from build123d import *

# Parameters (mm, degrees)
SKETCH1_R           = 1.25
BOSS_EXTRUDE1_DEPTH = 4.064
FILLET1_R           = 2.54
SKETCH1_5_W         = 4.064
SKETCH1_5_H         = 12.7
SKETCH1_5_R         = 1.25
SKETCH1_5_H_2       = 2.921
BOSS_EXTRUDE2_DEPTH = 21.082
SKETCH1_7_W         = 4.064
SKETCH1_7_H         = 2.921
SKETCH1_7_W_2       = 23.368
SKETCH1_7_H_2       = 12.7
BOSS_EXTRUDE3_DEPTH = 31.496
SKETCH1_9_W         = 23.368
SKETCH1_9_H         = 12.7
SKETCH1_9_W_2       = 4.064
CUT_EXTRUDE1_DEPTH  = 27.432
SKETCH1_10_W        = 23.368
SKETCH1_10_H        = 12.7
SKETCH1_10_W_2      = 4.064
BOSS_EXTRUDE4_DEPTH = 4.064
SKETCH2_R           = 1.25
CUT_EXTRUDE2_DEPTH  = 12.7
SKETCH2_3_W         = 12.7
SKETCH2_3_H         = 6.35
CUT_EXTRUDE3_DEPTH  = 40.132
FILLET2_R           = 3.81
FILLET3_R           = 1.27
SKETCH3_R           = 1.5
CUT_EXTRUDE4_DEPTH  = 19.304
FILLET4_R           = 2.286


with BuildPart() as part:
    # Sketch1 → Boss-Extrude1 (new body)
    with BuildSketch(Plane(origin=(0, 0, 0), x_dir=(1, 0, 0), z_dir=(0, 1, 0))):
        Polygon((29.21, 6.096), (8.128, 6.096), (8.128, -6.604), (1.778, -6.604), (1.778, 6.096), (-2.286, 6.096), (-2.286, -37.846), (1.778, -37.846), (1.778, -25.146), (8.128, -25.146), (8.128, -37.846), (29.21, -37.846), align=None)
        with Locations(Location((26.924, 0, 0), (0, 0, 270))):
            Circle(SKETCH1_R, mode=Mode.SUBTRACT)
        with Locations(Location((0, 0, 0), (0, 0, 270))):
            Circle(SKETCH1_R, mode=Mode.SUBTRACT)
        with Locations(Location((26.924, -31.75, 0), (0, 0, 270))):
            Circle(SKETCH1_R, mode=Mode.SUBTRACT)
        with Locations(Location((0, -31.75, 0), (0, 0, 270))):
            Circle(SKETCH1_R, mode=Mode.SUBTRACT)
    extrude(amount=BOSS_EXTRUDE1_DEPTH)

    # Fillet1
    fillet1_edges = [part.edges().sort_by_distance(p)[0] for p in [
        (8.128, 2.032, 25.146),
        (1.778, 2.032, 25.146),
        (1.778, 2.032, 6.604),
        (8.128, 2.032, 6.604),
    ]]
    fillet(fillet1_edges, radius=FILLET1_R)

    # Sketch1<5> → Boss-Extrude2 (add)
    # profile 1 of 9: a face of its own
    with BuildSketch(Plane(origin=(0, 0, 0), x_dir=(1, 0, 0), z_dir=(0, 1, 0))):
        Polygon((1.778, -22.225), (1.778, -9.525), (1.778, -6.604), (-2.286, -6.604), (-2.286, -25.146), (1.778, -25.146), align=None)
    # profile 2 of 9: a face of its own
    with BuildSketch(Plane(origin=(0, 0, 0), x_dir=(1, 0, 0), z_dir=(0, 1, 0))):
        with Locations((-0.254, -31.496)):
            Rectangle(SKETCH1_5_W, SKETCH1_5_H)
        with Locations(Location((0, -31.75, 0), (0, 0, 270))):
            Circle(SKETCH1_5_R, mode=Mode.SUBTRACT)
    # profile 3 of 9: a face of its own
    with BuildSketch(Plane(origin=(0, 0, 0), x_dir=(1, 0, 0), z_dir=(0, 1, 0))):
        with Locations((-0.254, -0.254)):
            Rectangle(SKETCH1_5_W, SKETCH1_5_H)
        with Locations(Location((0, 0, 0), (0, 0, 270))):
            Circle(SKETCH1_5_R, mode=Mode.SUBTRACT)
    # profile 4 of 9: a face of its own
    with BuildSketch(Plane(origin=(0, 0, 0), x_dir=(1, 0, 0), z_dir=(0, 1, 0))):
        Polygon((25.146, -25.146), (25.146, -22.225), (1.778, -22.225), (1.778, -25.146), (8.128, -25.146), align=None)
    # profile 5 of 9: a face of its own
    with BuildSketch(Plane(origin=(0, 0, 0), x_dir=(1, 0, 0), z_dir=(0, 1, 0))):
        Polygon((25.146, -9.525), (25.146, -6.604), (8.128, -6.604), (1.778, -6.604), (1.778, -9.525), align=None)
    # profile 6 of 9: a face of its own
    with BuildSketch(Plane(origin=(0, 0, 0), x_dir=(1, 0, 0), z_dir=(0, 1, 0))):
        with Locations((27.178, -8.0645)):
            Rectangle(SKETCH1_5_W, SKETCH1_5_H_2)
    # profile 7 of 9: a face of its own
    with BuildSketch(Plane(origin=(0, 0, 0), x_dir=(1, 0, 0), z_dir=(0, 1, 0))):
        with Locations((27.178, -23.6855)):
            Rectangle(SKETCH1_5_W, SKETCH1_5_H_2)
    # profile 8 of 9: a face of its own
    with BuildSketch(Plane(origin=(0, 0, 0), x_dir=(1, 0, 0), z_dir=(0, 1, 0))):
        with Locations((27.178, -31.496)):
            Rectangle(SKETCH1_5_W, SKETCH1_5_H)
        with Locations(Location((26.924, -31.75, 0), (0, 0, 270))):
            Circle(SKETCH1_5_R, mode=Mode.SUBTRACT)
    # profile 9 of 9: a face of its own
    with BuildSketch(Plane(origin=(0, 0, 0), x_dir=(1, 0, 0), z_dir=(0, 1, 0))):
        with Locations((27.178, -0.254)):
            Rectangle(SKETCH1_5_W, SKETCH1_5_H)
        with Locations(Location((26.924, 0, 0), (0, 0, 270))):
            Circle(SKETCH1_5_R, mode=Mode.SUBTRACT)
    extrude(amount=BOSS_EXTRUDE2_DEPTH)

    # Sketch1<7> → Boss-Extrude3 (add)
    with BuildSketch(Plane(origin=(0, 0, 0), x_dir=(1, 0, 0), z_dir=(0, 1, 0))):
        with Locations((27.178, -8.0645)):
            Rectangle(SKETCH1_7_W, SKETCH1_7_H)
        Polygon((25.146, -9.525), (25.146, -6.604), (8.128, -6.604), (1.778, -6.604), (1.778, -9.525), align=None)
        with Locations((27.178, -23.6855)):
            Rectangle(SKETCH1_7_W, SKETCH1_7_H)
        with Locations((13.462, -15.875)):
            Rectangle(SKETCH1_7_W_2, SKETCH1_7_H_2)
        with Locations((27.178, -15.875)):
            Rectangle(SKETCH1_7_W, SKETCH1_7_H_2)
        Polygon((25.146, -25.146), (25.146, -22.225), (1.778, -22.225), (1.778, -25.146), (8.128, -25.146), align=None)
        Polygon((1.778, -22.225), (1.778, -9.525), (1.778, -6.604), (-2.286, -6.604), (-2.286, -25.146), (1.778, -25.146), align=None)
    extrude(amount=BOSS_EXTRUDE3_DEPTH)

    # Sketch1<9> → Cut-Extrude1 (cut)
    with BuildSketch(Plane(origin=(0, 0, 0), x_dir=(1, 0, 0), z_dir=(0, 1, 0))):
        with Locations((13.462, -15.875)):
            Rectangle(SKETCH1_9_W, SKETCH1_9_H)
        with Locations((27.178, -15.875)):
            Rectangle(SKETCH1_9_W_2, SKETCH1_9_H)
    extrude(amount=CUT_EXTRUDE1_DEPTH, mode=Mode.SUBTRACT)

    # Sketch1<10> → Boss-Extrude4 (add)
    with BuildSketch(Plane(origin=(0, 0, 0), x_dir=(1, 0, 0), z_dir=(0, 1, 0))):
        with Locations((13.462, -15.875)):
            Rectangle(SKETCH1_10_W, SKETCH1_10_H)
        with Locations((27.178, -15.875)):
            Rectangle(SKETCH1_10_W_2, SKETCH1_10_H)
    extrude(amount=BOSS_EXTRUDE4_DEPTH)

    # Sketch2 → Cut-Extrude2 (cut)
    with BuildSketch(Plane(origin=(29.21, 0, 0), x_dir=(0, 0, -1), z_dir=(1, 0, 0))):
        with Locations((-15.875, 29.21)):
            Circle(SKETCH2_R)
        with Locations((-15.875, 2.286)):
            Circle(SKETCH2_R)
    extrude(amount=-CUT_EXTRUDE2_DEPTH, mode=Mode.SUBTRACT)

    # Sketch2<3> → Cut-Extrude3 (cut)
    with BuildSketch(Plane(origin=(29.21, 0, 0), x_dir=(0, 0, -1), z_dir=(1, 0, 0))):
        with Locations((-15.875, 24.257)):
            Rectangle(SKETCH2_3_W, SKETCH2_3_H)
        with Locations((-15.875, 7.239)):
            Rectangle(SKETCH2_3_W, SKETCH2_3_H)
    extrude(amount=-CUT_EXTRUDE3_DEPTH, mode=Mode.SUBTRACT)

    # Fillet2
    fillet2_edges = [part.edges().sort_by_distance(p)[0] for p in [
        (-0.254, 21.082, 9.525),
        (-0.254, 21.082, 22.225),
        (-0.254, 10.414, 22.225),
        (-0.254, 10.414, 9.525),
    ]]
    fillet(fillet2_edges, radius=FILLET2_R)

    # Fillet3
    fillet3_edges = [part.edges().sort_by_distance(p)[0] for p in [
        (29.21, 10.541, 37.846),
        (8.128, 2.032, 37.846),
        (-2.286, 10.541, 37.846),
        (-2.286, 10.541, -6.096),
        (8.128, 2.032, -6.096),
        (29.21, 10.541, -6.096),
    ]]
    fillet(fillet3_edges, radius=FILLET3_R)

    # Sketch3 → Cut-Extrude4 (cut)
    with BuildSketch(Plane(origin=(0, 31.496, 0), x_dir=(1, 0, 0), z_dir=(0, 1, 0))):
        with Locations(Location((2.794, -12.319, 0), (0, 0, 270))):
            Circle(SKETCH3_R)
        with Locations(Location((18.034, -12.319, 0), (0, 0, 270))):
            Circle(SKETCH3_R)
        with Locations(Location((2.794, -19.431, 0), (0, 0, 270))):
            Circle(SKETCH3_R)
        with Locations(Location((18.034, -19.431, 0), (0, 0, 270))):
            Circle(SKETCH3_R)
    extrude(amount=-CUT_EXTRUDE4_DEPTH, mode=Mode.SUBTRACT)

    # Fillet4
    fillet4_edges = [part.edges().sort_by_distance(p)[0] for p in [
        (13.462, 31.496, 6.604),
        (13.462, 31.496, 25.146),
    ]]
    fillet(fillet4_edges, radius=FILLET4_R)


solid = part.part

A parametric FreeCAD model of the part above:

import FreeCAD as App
import Part
import Sketcher

V = App.Vector
Q = App.Units.Quantity


def edges_at(feature, points):
    """Names of the edges that pass closest to the given points."""
    edges = feature.Shape.Edges
    near = lambda p: min(range(len(edges)), key=lambda i: edges[i].distToShape(Part.Vertex(*p))[0])
    return sorted({f"Edge{near(p) + 1}" for p in points})


def add_polygon(sketch, points):
    """Adds a closed chain of lines whose ends are joined by coincident constraints."""
    first, n = sketch.GeometryCount, len(points)
    for a, b in zip(points, points[1:] + points[:1]):
        sketch.addGeometry(Part.LineSegment(App.Vector(*a, 0), App.Vector(*b, 0)), False)
    for i in range(n):
        sketch.addConstraint(Sketcher.Constraint("Coincident", first + i, 2, first + (i + 1) % n, 1))

doc = App.newDocument("Part")
body = doc.addObject("PartDesign::Body", "Body")

sketch1 = body.newObject("Sketcher::SketchObject", "Sketch")
sketch1.AttachmentSupport = (doc.getObject("XZ_Plane"), [""])
sketch1.MapMode = "FlatFace"
add_polygon(sketch1, [(29.2, -6.1), (8.1, -6.1), (8.1, 6.6), (1.8, 6.6), (1.8, -6.1), (-2.3, -6.1), (-2.3, 37.8), (1.8, 37.8), (1.8, 25.1), (8.1, 25.1), (8.1, 37.8), (29.2, 37.8)])
sketch1.addGeometry(Part.Circle(V(0, 31.8, 0), V(0, 0, 1), 1.2), False)
sketch1.addGeometry(Part.Circle(V(26.9, 31.8, 0), V(0, 0, 1), 1.2), False)
sketch1.addGeometry(Part.Circle(V(0, 0, 0), V(0, 0, 1), 1.2), False)
sketch1.addGeometry(Part.Circle(V(26.9, 0, 0), V(0, 0, 1), 1.2), False)
sketch1.addConstraint(Sketcher.Constraint("Horizontal", 0))
sketch1.addConstraint(Sketcher.Constraint("Vertical", 1))
sketch1.addConstraint(Sketcher.Constraint("Horizontal", 2))
sketch1.addConstraint(Sketcher.Constraint("Vertical", 3))
sketch1.addConstraint(Sketcher.Constraint("Horizontal", 4))
sketch1.addConstraint(Sketcher.Constraint("Vertical", 5))
sketch1.addConstraint(Sketcher.Constraint("Horizontal", 6))
sketch1.addConstraint(Sketcher.Constraint("Vertical", 7))
sketch1.addConstraint(Sketcher.Constraint("Horizontal", 8))
sketch1.addConstraint(Sketcher.Constraint("Vertical", 9))
sketch1.addConstraint(Sketcher.Constraint("Horizontal", 10))
sketch1.addConstraint(Sketcher.Constraint("Vertical", 11))
sketch1.addConstraint(Sketcher.Constraint("Coincident", 14, 3, -1, 1))
sketch1.addConstraint(Sketcher.Constraint("Equal", 12, 13))
sketch1.addConstraint(Sketcher.Constraint("Equal", 13, 14))
sketch1.addConstraint(Sketcher.Constraint("Equal", 14, 15))
sketch1.addConstraint(Sketcher.Constraint("PointOnObject", 12, 3, -2))
sketch1.addConstraint(Sketcher.Constraint("PointOnObject", 15, 3, -1))
sketch1.addConstraint(Sketcher.Constraint("Horizontal", 12, 3, 13, 3))
sketch1.addConstraint(Sketcher.Constraint("Horizontal", 0, 2, 3, 2))
sketch1.addConstraint(Sketcher.Constraint("Horizontal", 6, 2, 9, 2))
sketch1.addConstraint(Sketcher.Constraint("Vertical", 13, 3, 15, 3))
sketch1.addConstraint(Sketcher.Constraint("Vertical", 3, 2, 6, 2))
sketch1.addConstraint(Sketcher.Constraint("Vertical", 1, 2, 8, 2))
sketch1.addConstraint(Sketcher.Constraint("Equal", 3, 7))
sketch1.addConstraint(Sketcher.Constraint("DistanceY", 1, 1, 1, 2, Q("0.5 in")))
sketch1.addConstraint(Sketcher.Constraint("DistanceX", 0, 2, 0, 1, Q("0.83 in")))
sketch1.addConstraint(Sketcher.Constraint("DistanceX", 2, 2, 2, 1, Q("0.25 in")))
sketch1.addConstraint(Sketcher.Constraint("DistanceX", 4, 2, 4, 1, Q("0.16 in")))
sketch1.addConstraint(Sketcher.Constraint("DistanceY", 5, 1, 5, 2, Q("1.73 in")))
sketch1.addConstraint(Sketcher.Constraint("Diameter", 12, 2.5))
sketch1.addConstraint(Sketcher.Constraint("DistanceY", -1, 1, 12, 3, Q("1.25 in")))
sketch1.addConstraint(Sketcher.Constraint("DistanceX", -1, 1, 13, 3, Q("1.06 in")))
sketch1.addConstraint(Sketcher.Constraint("DistanceX", -1, 1, 0, 2, Q("0.32 in")))
sketch1.addConstraint(Sketcher.Constraint("DistanceY", 0, 2, -1, 1, Q("0.24 in")))
pad1 = body.newObject("PartDesign::Pad", "Pad")
pad1.Profile = sketch1
pad1.Length = Q("0.16 in")
pad1.Reversed = True
doc.recompute()

fillet = body.newObject("PartDesign::Fillet", "Fillet")
fillet.Base = (pad1, edges_at(pad1, [
    (8.128, 2.032, 25.146),
    (1.778, 2.032, 25.146),
    (1.778, 2.032, 6.604),
    (8.128, 2.032, 6.604),
]))
fillet.Radius = Q("0.1 in")

sketch2 = body.newObject("Sketcher::SketchObject", "Sketch001")
sketch2.AttachmentSupport = (doc.getObject("XZ_Plane"), [""])
sketch2.MapMode = "FlatFace"
add_polygon(sketch2, [(-2.3, 37.8), (1.8, 37.8), (1.8, 25.1), (25.1, 25.1), (25.1, 37.8), (29.2, 37.8), (29.2, 22.2), (1.8, 22.2), (1.8, 9.5), (29.2, 9.5), (29.2, -6.1), (25.1, -6.1), (25.1, 6.6), (1.8, 6.6), (1.8, -6.1), (-2.3, -6.1)])
sketch2.addGeometry(Part.Circle(V(0, 0, 0), V(0, 0, 1), 1.2), False)
sketch2.addGeometry(Part.Circle(V(0, 31.8, 0), V(0, 0, 1), 1.2), False)
sketch2.addGeometry(Part.Circle(V(26.9, 31.8, 0), V(0, 0, 1), 1.2), False)
sketch2.addGeometry(Part.Circle(V(26.9, 0, 0), V(0, 0, 1), 1.2), False)
sketch2.addConstraint(Sketcher.Constraint("Horizontal", 0))
sketch2.addConstraint(Sketcher.Constraint("Vertical", 1))
sketch2.addConstraint(Sketcher.Constraint("Horizontal", 2))
sketch2.addConstraint(Sketcher.Constraint("Vertical", 3))
sketch2.addConstraint(Sketcher.Constraint("Horizontal", 4))
sketch2.addConstraint(Sketcher.Constraint("Vertical", 5))
sketch2.addConstraint(Sketcher.Constraint("Horizontal", 6))
sketch2.addConstraint(Sketcher.Constraint("Vertical", 7))
sketch2.addConstraint(Sketcher.Constraint("Horizontal", 8))
sketch2.addConstraint(Sketcher.Constraint("Vertical", 9))
sketch2.addConstraint(Sketcher.Constraint("Horizontal", 10))
sketch2.addConstraint(Sketcher.Constraint("Vertical", 11))
sketch2.addConstraint(Sketcher.Constraint("Horizontal", 12))
sketch2.addConstraint(Sketcher.Constraint("Vertical", 13))
sketch2.addConstraint(Sketcher.Constraint("Horizontal", 14))
sketch2.addConstraint(Sketcher.Constraint("Vertical", 15))
sketch2.addConstraint(Sketcher.Constraint("Coincident", 16, 3, -1, 1))
sketch2.addConstraint(Sketcher.Constraint("Equal", 16, 17))
sketch2.addConstraint(Sketcher.Constraint("Equal", 17, 18))
sketch2.addConstraint(Sketcher.Constraint("Equal", 18, 19))
sketch2.addConstraint(Sketcher.Constraint("PointOnObject", 17, 3, -2))
sketch2.addConstraint(Sketcher.Constraint("PointOnObject", 19, 3, -1))
sketch2.addConstraint(Sketcher.Constraint("Horizontal", 17, 3, 18, 3))
sketch2.addConstraint(Sketcher.Constraint("Horizontal", 0, 2, 3, 2))
sketch2.addConstraint(Sketcher.Constraint("Horizontal", 10, 2, 13, 2))
sketch2.addConstraint(Sketcher.Constraint("Vertical", 18, 3, 19, 3))
sketch2.addConstraint(Sketcher.Constraint("Vertical", 1, 2, 6, 2))
sketch2.addConstraint(Sketcher.Constraint("Vertical", 5, 2, 8, 2))
sketch2.addConstraint(Sketcher.Constraint("Vertical", 3, 2, 10, 2))
sketch2.addConstraint(Sketcher.Constraint("Vertical", 7, 2, 12, 2))
sketch2.addConstraint(Sketcher.Constraint("Equal", 0, 4))
sketch2.addConstraint(Sketcher.Constraint("Equal", 3, 7))
sketch2.addConstraint(Sketcher.Constraint("Equal", 5, 9))
sketch2.addConstraint(Sketcher.Constraint("Equal", 7, 11))
sketch2.addConstraint(Sketcher.Constraint("DistanceY", 1, 2, 1, 1, Q("0.5 in")))
sketch2.addConstraint(Sketcher.Constraint("DistanceX", 0, 1, 0, 2, Q("0.16 in")))
sketch2.addConstraint(Sketcher.Constraint("DistanceX", 2, 1, 2, 2, Q("0.92 in")))
sketch2.addConstraint(Sketcher.Constraint("DistanceY", 15, 1, 15, 2, Q("1.73 in")))
sketch2.addConstraint(Sketcher.Constraint("Diameter", 16, 2.5))
sketch2.addConstraint(Sketcher.Constraint("DistanceY", -1, 1, 17, 3, Q("1.25 in")))
sketch2.addConstraint(Sketcher.Constraint("DistanceX", -1, 1, 18, 3, Q("1.06 in")))
sketch2.addConstraint(Sketcher.Constraint("DistanceX", -1, 1, 0, 2, Q("0.07 in")))
sketch2.addConstraint(Sketcher.Constraint("DistanceY", -1, 1, 0, 2, Q("1.49 in")))
pad2 = body.newObject("PartDesign::Pad", "Pad001")
pad2.Profile = sketch2
pad2.Length = Q("0.83 in")
pad2.Reversed = True

sketch3 = body.newObject("Sketcher::SketchObject", "Sketch002")
sketch3.AttachmentSupport = (doc.getObject("XZ_Plane"), [""])
sketch3.MapMode = "FlatFace"
add_polygon(sketch3, [(29, 7), (-2, 7), (-2, 25), (29, 25)])
sketch3.addConstraint(Sketcher.Constraint("Horizontal", 0))
sketch3.addConstraint(Sketcher.Constraint("Vertical", 1))
sketch3.addConstraint(Sketcher.Constraint("Horizontal", 2))
sketch3.addConstraint(Sketcher.Constraint("Vertical", 3))
sketch3.addConstraint(Sketcher.Constraint("DistanceX", 0, 2, 0, 1, Q("1.24 in")))
sketch3.addConstraint(Sketcher.Constraint("DistanceY", 1, 1, 1, 2, Q("0.73 in")))
sketch3.addConstraint(Sketcher.Constraint("DistanceX", 0, 2, -1, 1, Q("0.09 in")))
sketch3.addConstraint(Sketcher.Constraint("DistanceY", -1, 1, 0, 2, Q("0.26 in")))
pad3 = body.newObject("PartDesign::Pad", "Pad002")
pad3.Profile = sketch3
pad3.Length = Q("1.24 in")
pad3.Reversed = True

sketch4 = body.newObject("Sketcher::SketchObject", "Sketch003")
sketch4.AttachmentSupport = (doc.getObject("XZ_Plane"), [""])
sketch4.MapMode = "FlatFace"
add_polygon(sketch4, [(2, 10), (2, 22), (29, 22), (29, 10)])
sketch4.addConstraint(Sketcher.Constraint("Vertical", 0))
sketch4.addConstraint(Sketcher.Constraint("Horizontal", 1))
sketch4.addConstraint(Sketcher.Constraint("Vertical", 2))
sketch4.addConstraint(Sketcher.Constraint("Horizontal", 3))
sketch4.addConstraint(Sketcher.Constraint("DistanceY", 0, 1, 0, 2, Q("0.5 in")))
sketch4.addConstraint(Sketcher.Constraint("DistanceX", 1, 1, 1, 2, Q("1.08 in")))
sketch4.addConstraint(Sketcher.Constraint("DistanceX", -1, 1, 0, 2, Q("0.07 in")))
sketch4.addConstraint(Sketcher.Constraint("DistanceY", -1, 1, 0, 2, Q("0.875 in")))
pocket1 = body.newObject("PartDesign::Pocket", "Pocket")
pocket1.Profile = sketch4
pocket1.Length = Q("1.08 in")

sketch5 = body.newObject("Sketcher::SketchObject", "Sketch004")
sketch5.AttachmentSupport = (doc.getObject("XZ_Plane"), [""])
sketch5.MapMode = "FlatFace"
add_polygon(sketch5, [(2, 10), (2, 22), (29, 22), (29, 10)])
sketch5.addConstraint(Sketcher.Constraint("Vertical", 0))
sketch5.addConstraint(Sketcher.Constraint("Horizontal", 1))
sketch5.addConstraint(Sketcher.Constraint("Vertical", 2))
sketch5.addConstraint(Sketcher.Constraint("Horizontal", 3))
sketch5.addConstraint(Sketcher.Constraint("DistanceY", 0, 1, 0, 2, Q("0.5 in")))
sketch5.addConstraint(Sketcher.Constraint("DistanceX", 1, 1, 1, 2, Q("1.08 in")))
sketch5.addConstraint(Sketcher.Constraint("DistanceX", -1, 1, 0, 2, Q("0.07 in")))
sketch5.addConstraint(Sketcher.Constraint("DistanceY", -1, 1, 0, 2, Q("0.875 in")))
pad4 = body.newObject("PartDesign::Pad", "Pad003")
pad4.Profile = sketch5
pad4.Length = Q("0.16 in")
pad4.Reversed = True

sketch6 = body.newObject("Sketcher::SketchObject", "Sketch005")
sketch6.AttachmentSupport = (doc.getObject("YZ_Plane"), [""])
sketch6.MapMode = "FlatFace"
sketch6.AttachmentOffset = App.Placement(V(0, 0, 1.15 * 25.4), App.Rotation())
sketch6.addGeometry(Part.Circle(V(29.2, 15.9, 0), V(0, 0, 1), 1.2), False)
sketch6.addGeometry(Part.Circle(V(2.3, 15.9, 0), V(0, 0, 1), 1.2), False)
sketch6.addConstraint(Sketcher.Constraint("Equal", 0, 1))
sketch6.addConstraint(Sketcher.Constraint("Horizontal", 0, 3, 1, 3))
sketch6.addConstraint(Sketcher.Constraint("Diameter", 0, 2.5))
sketch6.addConstraint(Sketcher.Constraint("DistanceX", -1, 1, 0, 3, Q("1.15 in")))
sketch6.addConstraint(Sketcher.Constraint("DistanceX", -1, 1, 1, 3, Q("0.09 in")))
sketch6.addConstraint(Sketcher.Constraint("DistanceY", -1, 1, 0, 3, Q("0.625 in")))
pocket2 = body.newObject("PartDesign::Pocket", "Pocket001")
pocket2.Profile = sketch6
pocket2.Length = Q("0.5 in")

sketch7 = body.newObject("Sketcher::SketchObject", "Sketch006")
sketch7.AttachmentSupport = (doc.getObject("YZ_Plane"), [""])
sketch7.MapMode = "FlatFace"
sketch7.AttachmentOffset = App.Placement(V(0, 0, 1.15 * 25.4), App.Rotation())
add_polygon(sketch7, [(27, 22), (21, 22), (21, 10), (27, 10)])
add_polygon(sketch7, [(10, 22), (4, 22), (4, 10), (10, 10)])
sketch7.addConstraint(Sketcher.Constraint("Horizontal", 0))
sketch7.addConstraint(Sketcher.Constraint("Vertical", 1))
sketch7.addConstraint(Sketcher.Constraint("Horizontal", 2))
sketch7.addConstraint(Sketcher.Constraint("Vertical", 3))
sketch7.addConstraint(Sketcher.Constraint("Horizontal", 4))
sketch7.addConstraint(Sketcher.Constraint("Vertical", 5))
sketch7.addConstraint(Sketcher.Constraint("Horizontal", 6))
sketch7.addConstraint(Sketcher.Constraint("Vertical", 7))
sketch7.addConstraint(Sketcher.Constraint("Horizontal", 3, 2, 4, 2))
sketch7.addConstraint(Sketcher.Constraint("Horizontal", 2, 2, 5, 2))
sketch7.addConstraint(Sketcher.Constraint("Equal", 2, 4))
sketch7.addConstraint(Sketcher.Constraint("DistanceY", 1, 2, 1, 1, Q("0.5 in")))
sketch7.addConstraint(Sketcher.Constraint("DistanceX", 0, 2, 0, 1, Q("0.25 in")))
sketch7.addConstraint(Sketcher.Constraint("DistanceX", -1, 1, 0, 2, Q("0.83 in")))
sketch7.addConstraint(Sketcher.Constraint("DistanceX", -1, 1, 4, 2, Q("0.16 in")))
sketch7.addConstraint(Sketcher.Constraint("DistanceY", -1, 1, 0, 2, Q("0.875 in")))
pocket3 = body.newObject("PartDesign::Pocket", "Pocket002")
pocket3.Profile = sketch7
pocket3.Length = Q("1.58 in")
doc.recompute()

fillet2 = body.newObject("PartDesign::Fillet", "Fillet001")
fillet2.Base = (pocket3, edges_at(pocket3, [
    (-0.254, 21.082, 9.525),
    (-0.254, 21.082, 22.225),
    (-0.254, 10.414, 22.225),
    (-0.254, 10.414, 9.525),
]))
fillet2.Radius = Q("0.15 in")
doc.recompute()

fillet3 = body.newObject("PartDesign::Fillet", "Fillet002")
fillet3.Base = (fillet2, edges_at(fillet2, [
    (29.21, 10.541, 37.846),
    (8.128, 2.032, 37.846),
    (-2.286, 10.541, 37.846),
    (-2.286, 10.541, -6.096),
    (8.128, 2.032, -6.096),
    (29.21, 10.541, -6.096),
]))
fillet3.Radius = Q("0.05 in")

sketch8 = body.newObject("Sketcher::SketchObject", "Sketch007")
sketch8.AttachmentSupport = (doc.getObject("XZ_Plane"), [""])
sketch8.MapMode = "FlatFace"
sketch8.AttachmentOffset = App.Placement(V(0, 0, -1.24 * 25.4), App.Rotation())
sketch8.addGeometry(Part.Circle(V(2.8, 12.3, 0), V(0, 0, 1), 1.5), False)
sketch8.addGeometry(Part.Circle(V(18, 12.3, 0), V(0, 0, 1), 1.5), False)
sketch8.addGeometry(Part.Circle(V(2.8, 19.4, 0), V(0, 0, 1), 1.5), False)
sketch8.addGeometry(Part.Circle(V(18, 19.4, 0), V(0, 0, 1), 1.5), False)
sketch8.addConstraint(Sketcher.Constraint("Equal", 0, 1))
sketch8.addConstraint(Sketcher.Constraint("Equal", 1, 2))
sketch8.addConstraint(Sketcher.Constraint("Equal", 2, 3))
sketch8.addConstraint(Sketcher.Constraint("Horizontal", 0, 3, 1, 3))
sketch8.addConstraint(Sketcher.Constraint("Horizontal", 2, 3, 3, 3))
sketch8.addConstraint(Sketcher.Constraint("Vertical", 0, 3, 2, 3))
sketch8.addConstraint(Sketcher.Constraint("Vertical", 1, 3, 3, 3))
sketch8.addConstraint(Sketcher.Constraint("DistanceX", 0, 3, 1, 3, Q("0.6 in")))
sketch8.addConstraint(Sketcher.Constraint("Diameter", 0, 3.0))
sketch8.addConstraint(Sketcher.Constraint("DistanceX", -1, 1, 0, 3, Q("0.11 in")))
sketch8.addConstraint(Sketcher.Constraint("DistanceY", 0, 3, 2, 3, Q("0.28 in")))
sketch8.addConstraint(Sketcher.Constraint("DistanceY", -1, 1, 0, 3, Q("0.485 in")))
pocket4 = body.newObject("PartDesign::Pocket", "Pocket003")
pocket4.Profile = sketch8
pocket4.Length = Q("0.76 in")
pocket4.Reversed = True
doc.recompute()

fillet4 = body.newObject("PartDesign::Fillet", "Fillet003")
fillet4.Base = (pocket4, edges_at(pocket4, [(13.462, 31.496, 6.604), (13.462, 31.496, 25.146)]))
fillet4.Radius = Q("0.09 in")

doc.recompute()
